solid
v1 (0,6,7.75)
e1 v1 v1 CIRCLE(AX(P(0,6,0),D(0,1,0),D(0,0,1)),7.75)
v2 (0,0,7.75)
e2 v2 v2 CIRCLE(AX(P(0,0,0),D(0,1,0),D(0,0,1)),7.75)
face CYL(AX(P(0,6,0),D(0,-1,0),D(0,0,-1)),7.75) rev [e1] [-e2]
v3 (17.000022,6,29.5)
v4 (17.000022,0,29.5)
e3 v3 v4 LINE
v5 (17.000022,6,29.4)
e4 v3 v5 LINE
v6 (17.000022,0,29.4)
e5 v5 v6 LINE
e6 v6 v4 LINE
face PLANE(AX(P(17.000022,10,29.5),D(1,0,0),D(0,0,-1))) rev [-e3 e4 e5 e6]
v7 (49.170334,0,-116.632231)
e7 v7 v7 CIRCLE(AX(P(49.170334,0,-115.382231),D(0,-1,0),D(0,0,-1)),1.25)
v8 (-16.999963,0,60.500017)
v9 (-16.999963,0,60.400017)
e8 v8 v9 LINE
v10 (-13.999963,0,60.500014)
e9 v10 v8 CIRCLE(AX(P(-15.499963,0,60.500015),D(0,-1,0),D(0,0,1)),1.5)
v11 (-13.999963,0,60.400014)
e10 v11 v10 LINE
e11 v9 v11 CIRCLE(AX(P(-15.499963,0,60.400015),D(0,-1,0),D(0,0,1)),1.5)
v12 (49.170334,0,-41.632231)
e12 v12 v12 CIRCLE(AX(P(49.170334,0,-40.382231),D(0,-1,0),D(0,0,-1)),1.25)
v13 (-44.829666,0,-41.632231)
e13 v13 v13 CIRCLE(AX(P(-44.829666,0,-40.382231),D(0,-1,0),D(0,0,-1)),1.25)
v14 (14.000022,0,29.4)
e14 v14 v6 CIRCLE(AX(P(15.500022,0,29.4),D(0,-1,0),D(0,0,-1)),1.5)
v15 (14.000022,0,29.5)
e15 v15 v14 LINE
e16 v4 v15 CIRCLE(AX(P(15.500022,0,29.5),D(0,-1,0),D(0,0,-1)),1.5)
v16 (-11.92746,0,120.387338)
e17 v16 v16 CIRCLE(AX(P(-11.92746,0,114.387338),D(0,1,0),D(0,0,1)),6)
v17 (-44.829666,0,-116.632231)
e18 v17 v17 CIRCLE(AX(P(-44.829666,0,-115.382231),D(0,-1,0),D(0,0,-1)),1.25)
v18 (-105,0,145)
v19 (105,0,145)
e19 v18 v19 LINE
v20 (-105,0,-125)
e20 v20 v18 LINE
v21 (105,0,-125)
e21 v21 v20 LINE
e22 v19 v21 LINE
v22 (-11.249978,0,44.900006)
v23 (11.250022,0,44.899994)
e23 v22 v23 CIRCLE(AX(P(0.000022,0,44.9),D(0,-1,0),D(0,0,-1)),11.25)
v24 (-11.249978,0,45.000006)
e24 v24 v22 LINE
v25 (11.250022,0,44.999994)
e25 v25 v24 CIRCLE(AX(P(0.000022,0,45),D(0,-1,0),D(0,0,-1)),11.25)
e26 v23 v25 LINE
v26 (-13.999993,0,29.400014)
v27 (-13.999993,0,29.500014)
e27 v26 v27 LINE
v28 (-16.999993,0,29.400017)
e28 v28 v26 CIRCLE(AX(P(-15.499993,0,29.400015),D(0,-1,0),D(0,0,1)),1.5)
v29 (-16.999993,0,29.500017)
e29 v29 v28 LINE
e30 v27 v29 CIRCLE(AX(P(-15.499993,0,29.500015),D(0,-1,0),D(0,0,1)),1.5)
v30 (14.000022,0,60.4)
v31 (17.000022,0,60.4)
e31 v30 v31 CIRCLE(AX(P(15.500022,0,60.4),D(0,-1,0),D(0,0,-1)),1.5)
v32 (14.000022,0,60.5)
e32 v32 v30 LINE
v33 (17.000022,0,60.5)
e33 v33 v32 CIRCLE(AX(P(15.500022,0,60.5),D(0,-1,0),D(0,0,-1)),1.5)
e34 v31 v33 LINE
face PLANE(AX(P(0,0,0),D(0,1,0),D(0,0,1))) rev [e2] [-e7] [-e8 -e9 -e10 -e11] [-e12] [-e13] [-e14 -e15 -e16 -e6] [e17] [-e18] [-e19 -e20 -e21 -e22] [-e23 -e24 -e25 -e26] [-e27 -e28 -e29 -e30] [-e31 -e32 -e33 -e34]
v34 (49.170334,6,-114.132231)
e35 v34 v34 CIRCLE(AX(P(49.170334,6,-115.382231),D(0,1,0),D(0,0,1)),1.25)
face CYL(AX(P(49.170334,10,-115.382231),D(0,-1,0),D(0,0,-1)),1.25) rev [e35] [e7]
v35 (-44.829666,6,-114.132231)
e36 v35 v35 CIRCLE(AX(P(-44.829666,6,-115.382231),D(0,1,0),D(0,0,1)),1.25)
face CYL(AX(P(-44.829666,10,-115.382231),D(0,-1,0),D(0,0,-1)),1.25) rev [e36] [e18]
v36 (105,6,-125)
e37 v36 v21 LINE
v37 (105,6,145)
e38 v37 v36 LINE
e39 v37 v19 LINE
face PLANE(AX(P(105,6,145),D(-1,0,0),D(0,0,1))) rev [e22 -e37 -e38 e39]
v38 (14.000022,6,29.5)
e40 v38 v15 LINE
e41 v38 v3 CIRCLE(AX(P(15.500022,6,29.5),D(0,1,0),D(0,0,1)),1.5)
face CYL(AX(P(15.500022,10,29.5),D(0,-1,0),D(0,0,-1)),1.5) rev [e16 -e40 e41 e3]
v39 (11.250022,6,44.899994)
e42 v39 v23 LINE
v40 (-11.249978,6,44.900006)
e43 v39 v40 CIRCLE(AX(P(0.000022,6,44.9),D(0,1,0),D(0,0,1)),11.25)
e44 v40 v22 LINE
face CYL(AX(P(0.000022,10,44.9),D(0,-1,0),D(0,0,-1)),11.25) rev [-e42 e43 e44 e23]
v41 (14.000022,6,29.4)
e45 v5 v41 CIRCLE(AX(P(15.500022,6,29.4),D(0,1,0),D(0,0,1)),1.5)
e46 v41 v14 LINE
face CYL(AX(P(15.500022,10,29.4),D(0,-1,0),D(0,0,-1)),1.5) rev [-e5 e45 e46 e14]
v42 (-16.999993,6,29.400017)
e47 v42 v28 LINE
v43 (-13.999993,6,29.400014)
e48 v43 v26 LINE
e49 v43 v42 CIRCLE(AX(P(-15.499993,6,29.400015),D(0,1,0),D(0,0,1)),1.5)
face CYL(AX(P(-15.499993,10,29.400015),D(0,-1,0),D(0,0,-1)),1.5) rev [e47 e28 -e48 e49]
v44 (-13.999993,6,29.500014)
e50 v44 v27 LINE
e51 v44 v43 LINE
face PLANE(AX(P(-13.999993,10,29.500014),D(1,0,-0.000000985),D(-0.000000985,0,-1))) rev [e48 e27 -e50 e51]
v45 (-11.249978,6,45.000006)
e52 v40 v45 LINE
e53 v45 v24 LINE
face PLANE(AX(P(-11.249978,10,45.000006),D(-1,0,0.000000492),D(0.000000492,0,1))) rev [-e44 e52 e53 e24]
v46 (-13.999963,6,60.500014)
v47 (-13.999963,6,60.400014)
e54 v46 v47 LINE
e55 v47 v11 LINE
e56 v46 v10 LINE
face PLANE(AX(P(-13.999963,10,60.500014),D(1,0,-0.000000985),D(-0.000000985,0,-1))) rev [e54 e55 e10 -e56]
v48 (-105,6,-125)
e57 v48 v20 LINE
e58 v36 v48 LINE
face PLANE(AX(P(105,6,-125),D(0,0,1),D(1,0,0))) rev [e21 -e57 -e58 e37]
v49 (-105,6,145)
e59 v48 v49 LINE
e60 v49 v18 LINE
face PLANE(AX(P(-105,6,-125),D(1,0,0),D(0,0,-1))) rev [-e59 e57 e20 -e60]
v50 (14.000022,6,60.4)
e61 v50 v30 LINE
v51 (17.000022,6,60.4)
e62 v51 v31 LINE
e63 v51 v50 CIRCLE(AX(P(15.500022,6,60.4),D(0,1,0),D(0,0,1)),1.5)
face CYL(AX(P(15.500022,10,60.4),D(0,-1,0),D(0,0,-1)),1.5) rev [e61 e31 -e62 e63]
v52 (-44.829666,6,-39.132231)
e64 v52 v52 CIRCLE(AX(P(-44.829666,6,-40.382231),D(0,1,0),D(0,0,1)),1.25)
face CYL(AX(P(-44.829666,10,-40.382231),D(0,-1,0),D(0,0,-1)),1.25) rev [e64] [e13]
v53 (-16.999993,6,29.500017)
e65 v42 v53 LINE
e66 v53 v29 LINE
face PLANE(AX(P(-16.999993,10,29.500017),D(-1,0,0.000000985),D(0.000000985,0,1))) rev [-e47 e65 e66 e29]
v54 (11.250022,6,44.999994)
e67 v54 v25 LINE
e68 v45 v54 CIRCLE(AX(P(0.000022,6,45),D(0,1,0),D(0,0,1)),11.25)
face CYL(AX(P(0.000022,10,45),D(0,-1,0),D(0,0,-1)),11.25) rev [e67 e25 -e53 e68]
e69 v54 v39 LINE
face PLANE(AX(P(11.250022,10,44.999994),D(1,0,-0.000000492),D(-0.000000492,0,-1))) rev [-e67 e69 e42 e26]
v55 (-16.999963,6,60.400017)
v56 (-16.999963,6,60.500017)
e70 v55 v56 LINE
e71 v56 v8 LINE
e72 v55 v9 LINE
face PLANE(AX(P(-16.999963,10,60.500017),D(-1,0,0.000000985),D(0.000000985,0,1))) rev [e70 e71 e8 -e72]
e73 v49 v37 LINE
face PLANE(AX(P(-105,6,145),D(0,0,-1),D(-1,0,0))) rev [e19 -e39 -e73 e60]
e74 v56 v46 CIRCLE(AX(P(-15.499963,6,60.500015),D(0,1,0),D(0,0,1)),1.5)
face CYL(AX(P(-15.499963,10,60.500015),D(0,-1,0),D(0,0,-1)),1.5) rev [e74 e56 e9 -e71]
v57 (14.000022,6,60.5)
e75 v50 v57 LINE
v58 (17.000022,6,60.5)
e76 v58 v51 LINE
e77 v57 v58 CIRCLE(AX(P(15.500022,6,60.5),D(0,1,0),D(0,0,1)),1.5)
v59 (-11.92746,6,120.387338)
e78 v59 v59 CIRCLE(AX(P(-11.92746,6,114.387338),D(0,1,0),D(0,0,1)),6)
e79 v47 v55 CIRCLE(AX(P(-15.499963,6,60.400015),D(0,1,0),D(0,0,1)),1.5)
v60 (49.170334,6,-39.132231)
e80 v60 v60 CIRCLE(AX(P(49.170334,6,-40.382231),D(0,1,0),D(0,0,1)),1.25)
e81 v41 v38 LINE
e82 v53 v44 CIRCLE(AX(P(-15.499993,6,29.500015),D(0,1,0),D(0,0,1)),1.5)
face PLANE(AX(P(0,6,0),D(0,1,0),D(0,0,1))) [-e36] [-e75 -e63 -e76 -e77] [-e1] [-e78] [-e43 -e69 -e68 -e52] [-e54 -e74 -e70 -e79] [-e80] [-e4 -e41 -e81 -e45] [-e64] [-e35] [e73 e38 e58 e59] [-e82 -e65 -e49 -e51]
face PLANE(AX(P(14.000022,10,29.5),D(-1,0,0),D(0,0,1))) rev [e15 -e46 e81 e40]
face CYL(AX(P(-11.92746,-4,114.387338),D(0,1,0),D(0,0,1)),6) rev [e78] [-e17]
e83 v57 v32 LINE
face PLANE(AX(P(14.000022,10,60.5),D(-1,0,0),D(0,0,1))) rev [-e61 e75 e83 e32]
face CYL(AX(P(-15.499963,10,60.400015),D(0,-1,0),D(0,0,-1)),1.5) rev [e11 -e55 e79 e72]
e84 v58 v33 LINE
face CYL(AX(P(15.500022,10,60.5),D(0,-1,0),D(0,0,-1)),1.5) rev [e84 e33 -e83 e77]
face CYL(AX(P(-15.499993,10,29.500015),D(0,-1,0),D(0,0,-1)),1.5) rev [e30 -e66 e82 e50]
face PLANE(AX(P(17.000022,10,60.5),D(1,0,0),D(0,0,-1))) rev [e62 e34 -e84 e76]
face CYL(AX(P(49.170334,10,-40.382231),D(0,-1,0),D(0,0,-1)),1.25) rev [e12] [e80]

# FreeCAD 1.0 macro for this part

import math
import FreeCAD as App
import Part
import Sketcher

V = App.Vector
Q = App.Units.Quantity


def add_polygon(sketch, points):
    """Adds a closed chain of lines whose ends are joined by coincident constraints."""
    first, n = sketch.GeometryCount, len(points)
    for a, b in zip(points, points[1:] + points[:1]):
        sketch.addGeometry(Part.LineSegment(App.Vector(*a, 0), App.Vector(*b, 0)), False)
    for i in range(n):
        sketch.addConstraint(Sketcher.Constraint("Coincident", first + i, 2, first + (i + 1) % n, 1))

doc = App.newDocument("Part")
body = doc.addObject("PartDesign::Body", "Body")

sketch1 = body.newObject("Sketcher::SketchObject", "Sketch")
sketch1.AttachmentSupport = (doc.getObject("XZ_Plane"), [""])
sketch1.MapMode = "FlatFace"
add_polygon(sketch1, [(-105, -125), (-105, 145), (105, 145), (105, -125)])
sketch1.addGeometry(Part.Circle(V(0, 0, 0), V(0, 0, 1), 8), False)
sketch1.addConstraint([
    Sketcher.Constraint("Vertical", 0),
    Sketcher.Constraint("Horizontal", 1),
    Sketcher.Constraint("Vertical", 2),
    Sketcher.Constraint("Horizontal", 3),
    Sketcher.Constraint("Coincident", 4, 3, -1, 1),
    Sketcher.Constraint("Diameter", 4, Q("15.5 mm")),
    Sketcher.Constraint("DistanceX", 1, 1, 1, 2, Q("210 mm")),
    Sketcher.Constraint("DistanceY", 0, 1, 0, 2, Q("270 mm")),
    Sketcher.Constraint("DistanceX", 0, 2, -1, 1, Q("105 mm")),
    Sketcher.Constraint("DistanceY", -1, 1, 0, 2, Q("145 mm")),
])
pad1 = body.newObject("PartDesign::Pad", "Pad")
pad1.Profile = sketch1
pad1.Length = 6
pad1.Reversed = True

sketch2 = body.newObject("Sketcher::SketchObject", "Sketch001")
sketch2.AttachmentSupport = (doc.getObject("XZ_Plane"), [""])
sketch2.MapMode = "FlatFace"
sketch2.addGeometry([
    Part.LineSegment(V(17, 29.4, 0), V(17, 29.5, 0)),
    Part.ArcOfCircle(Part.Circle(V(15.5, 29.5, 0), V(0, 0, 1), 1.5), math.radians(0), math.radians(180)),
    Part.LineSegment(V(14, 29.5, 0), V(14, 29.4, 0)),
    Part.ArcOfCircle(Part.Circle(V(15.5, 29.4, 0), V(0, 0, 1), 1.5), math.radians(180), math.radians(360)),
    Part.LineSegment(V(17, 60.4, 0), V(17, 60.5, 0)),
    Part.ArcOfCircle(Part.Circle(V(15.5, 60.5, 0), V(0, 0, 1), 1.5), math.radians(0), math.radians(180)),
    Part.LineSegment(V(14, 60.5, 0), V(14, 60.4, 0)),
    Part.ArcOfCircle(Part.Circle(V(15.5, 60.4, 0), V(0, 0, 1), 1.5), math.radians(180), math.radians(360)),
    Part.LineSegment(V(-17, 29.5, 0), V(-17, 29.4, 0)),
    Part.ArcOfCircle(Part.Circle(V(-15.5, 29.4, 0), V(0, 0, 1), 1.5), math.radians(180), math.radians(360)),
    Part.LineSegment(V(-14, 29.4, 0), V(-14, 29.5, 0)),
    Part.ArcOfCircle(Part.Circle(V(-15.5, 29.5, 0), V(0, 0, 1), 1.5), math.radians(0), math.radians(180)),
    Part.LineSegment(V(-17, 60.5, 0), V(-17, 60.4, 0)),
    Part.ArcOfCircle(Part.Circle(V(-15.5, 60.4, 0), V(0, 0, 1), 1.5), math.radians(180), math.radians(360)),
    Part.LineSegment(V(-14, 60.4, 0), V(-14, 60.5, 0)),
    Part.ArcOfCircle(Part.Circle(V(-15.5, 60.5, 0), V(0, 0, 1), 1.5), math.radians(0), math.radians(180)),
    Part.LineSegment(V(11.25, 44.9, 0), V(11.25, 45, 0)),
    Part.ArcOfCircle(Part.Circle(V(0, 45, 0), V(0, 0, 1), 11.25), math.radians(0), math.radians(180)),
    Part.LineSegment(V(-11.25, 45, 0), V(-11.25, 44.9, 0)),
    Part.ArcOfCircle(Part.Circle(V(0, 44.9, 0), V(0, 0, 1), 11.25), math.radians(180), math.radians(360)),
], False)
sketch2.addConstraint([
    Sketcher.Constraint("Tangent", 0, 2, 1, 1),
    Sketcher.Constraint("Tangent", 1, 2, 2, 1),
    Sketcher.Constraint("Tangent", 2, 2, 3, 1),
    Sketcher.Constraint("Tangent", 3, 2, 0, 1),
    Sketcher.Constraint("Tangent", 4, 2, 5, 1),
    Sketcher.Constraint("Tangent", 5, 2, 6, 1),
    Sketcher.Constraint("Tangent", 6, 2, 7, 1),
    Sketcher.Constraint("Tangent", 7, 2, 4, 1),
    Sketcher.Constraint("Tangent", 8, 2, 9, 1),
    Sketcher.Constraint("Tangent", 9, 2, 10, 1),
    Sketcher.Constraint("Tangent", 10, 2, 11, 1),
    Sketcher.Constraint("Tangent", 11, 2, 8, 1),
    Sketcher.Constraint("Tangent", 12, 2, 13, 1),
    Sketcher.Constraint("Tangent", 13, 2, 14, 1),
    Sketcher.Constraint("Tangent", 14, 2, 15, 1),
    Sketcher.Constraint("Tangent", 15, 2, 12, 1),
    Sketcher.Constraint("Tangent", 16, 2, 17, 1),
    Sketcher.Constraint("Tangent", 17, 2, 18, 1),
    Sketcher.Constraint("Tangent", 18, 2, 19, 1),
    Sketcher.Constraint("Tangent", 19, 2, 16, 1),
    Sketcher.Constraint("Vertical", 0),
    Sketcher.Constraint("Vertical", 2),
    Sketcher.Constraint("Vertical", 4),
    Sketcher.Constraint("Vertical", 6),
    Sketcher.Constraint("Vertical", 8),
    Sketcher.Constraint("Vertical", 10),
    Sketcher.Constraint("Vertical", 12),
    Sketcher.Constraint("Vertical", 14),
    Sketcher.Constraint("Vertical", 16),
    Sketcher.Constraint("Vertical", 18),
    Sketcher.Constraint("Equal", 3, 5),
    Sketcher.Constraint("Equal", 7, 9),
    Sketcher.Constraint("Equal", 11, 13),
    Sketcher.Constraint("Vertical", 3, 3, 5, 3),
    Sketcher.Constraint("Equal", 2, 4),
    Sketcher.Constraint("Equal", 6, 8),
    Sketcher.Constraint("Equal", 10, 12),
    Sketcher.Constraint("Equal", 14, 16),
    Sketcher.Constraint("Radius", 1, Q("1.5 mm")),
    Sketcher.Constraint("Radius", 17, Q("11.25 mm")),
    Sketcher.Constraint("DistanceY", 0, 1, 0, 2, Q("0.1 mm")),
    Sketcher.Constraint("DistanceY", -1, 1, 17, 3, Q("45 mm")),
    Sketcher.Constraint("DistanceY", 1, 3, 5, 3, Q("31 mm")),
    Sketcher.Constraint("DistanceY", 9, 3, 13, 3, Q("31 mm")),
    Sketcher.Constraint("DistanceX", 19, 3, 0, 2, Q("17 mm")),
    Sketcher.Constraint("DistanceY", -1, 1, 1, 3, Q("29.5 mm")),
    Sketcher.Constraint("DistanceY", 17, 2, 13, 2, Q("15.400008 mm")),
    Sketcher.Constraint("DistanceX", -1, 1, 1, 3, Q("15.500022 mm")),
    Sketcher.Constraint("DistanceX", 9, 3, -1, 1, Q("15.499993 mm")),
    Sketcher.Constraint("DistanceX", 13, 3, -1, 1, Q("15.499963 mm")),
])
pocket1 = body.newObject("PartDesign::Pocket", "Pocket")
pocket1.Profile = sketch2
pocket1.Length = 10

sketch3 = body.newObject("Sketcher::SketchObject", "Sketch002")
sketch3.AttachmentSupport = (doc.getObject("XZ_Plane"), [""])
sketch3.MapMode = "FlatFace"
sketch3.addGeometry([
    Part.Circle(V(49.2, -115.4, 0), V(0, 0, 1), 1.2),
    Part.Circle(V(-44.8, -115.4, 0), V(0, 0, 1), 1.2),
    Part.Circle(V(49.2, -40.4, 0), V(0, 0, 1), 1.2),
    Part.Circle(V(-44.8, -40.4, 0), V(0, 0, 1), 1.2),
], False)
sketch3.addConstraint([
    Sketcher.Constraint("Equal", 0, 1),
    Sketcher.Constraint("Equal", 1, 2),
    Sketcher.Constraint("Equal", 2, 3),
    Sketcher.Constraint("Horizontal", 0, 3, 1, 3),
    Sketcher.Constraint("Horizontal", 2, 3, 3, 3),
    Sketcher.Constraint("Vertical", 0, 3, 2, 3),
    Sketcher.Constraint("Vertical", 1, 3, 3, 3),
    Sketcher.Constraint("Diameter", 0, Q("2.5 mm")),
    Sketcher.Constraint("DistanceX", 1, 3, 0, 3, Q("94 mm")),
    Sketcher.Constraint("DistanceY", 0, 3, 2, 3, Q("75 mm")),
    Sketcher.Constraint("DistanceY", 0, 3, -1, 1, Q("115.382231 mm")),
    Sketcher.Constraint("DistanceX", -1, 1, 0, 3, Q("49.170334 mm")),
])
pocket2 = body.newObject("PartDesign::Pocket", "Pocket001")
pocket2.Profile = sketch3
pocket2.Length = 10

sketch4 = body.newObject("Sketcher::SketchObject", "Sketch003")
sketch4.AttachmentSupport = (doc.getObject("XZ_Plane"), [""])
sketch4.MapMode = "FlatFace"
sketch4.AttachmentOffset = App.Placement(V(0, 0, -6), App.Rotation())
sketch4.addGeometry(Part.Circle(V(-12, 114, 0), V(0, 0, 1), 6), False)
sketch4.addConstraint([
    Sketcher.Constraint("Diameter", 0, Q("12 mm")),
    Sketcher.Constraint("DistanceX", 0, 3, -1, 1, Q("11.92746 mm")),
    Sketcher.Constraint("DistanceY", -1, 1, 0, 3, Q("114.387338 mm")),
])
pocket3 = body.newObject("PartDesign::Pocket", "Pocket002")
pocket3.Profile = sketch4
pocket3.Length = 10
pocket3.Reversed = True

doc.recompute()
